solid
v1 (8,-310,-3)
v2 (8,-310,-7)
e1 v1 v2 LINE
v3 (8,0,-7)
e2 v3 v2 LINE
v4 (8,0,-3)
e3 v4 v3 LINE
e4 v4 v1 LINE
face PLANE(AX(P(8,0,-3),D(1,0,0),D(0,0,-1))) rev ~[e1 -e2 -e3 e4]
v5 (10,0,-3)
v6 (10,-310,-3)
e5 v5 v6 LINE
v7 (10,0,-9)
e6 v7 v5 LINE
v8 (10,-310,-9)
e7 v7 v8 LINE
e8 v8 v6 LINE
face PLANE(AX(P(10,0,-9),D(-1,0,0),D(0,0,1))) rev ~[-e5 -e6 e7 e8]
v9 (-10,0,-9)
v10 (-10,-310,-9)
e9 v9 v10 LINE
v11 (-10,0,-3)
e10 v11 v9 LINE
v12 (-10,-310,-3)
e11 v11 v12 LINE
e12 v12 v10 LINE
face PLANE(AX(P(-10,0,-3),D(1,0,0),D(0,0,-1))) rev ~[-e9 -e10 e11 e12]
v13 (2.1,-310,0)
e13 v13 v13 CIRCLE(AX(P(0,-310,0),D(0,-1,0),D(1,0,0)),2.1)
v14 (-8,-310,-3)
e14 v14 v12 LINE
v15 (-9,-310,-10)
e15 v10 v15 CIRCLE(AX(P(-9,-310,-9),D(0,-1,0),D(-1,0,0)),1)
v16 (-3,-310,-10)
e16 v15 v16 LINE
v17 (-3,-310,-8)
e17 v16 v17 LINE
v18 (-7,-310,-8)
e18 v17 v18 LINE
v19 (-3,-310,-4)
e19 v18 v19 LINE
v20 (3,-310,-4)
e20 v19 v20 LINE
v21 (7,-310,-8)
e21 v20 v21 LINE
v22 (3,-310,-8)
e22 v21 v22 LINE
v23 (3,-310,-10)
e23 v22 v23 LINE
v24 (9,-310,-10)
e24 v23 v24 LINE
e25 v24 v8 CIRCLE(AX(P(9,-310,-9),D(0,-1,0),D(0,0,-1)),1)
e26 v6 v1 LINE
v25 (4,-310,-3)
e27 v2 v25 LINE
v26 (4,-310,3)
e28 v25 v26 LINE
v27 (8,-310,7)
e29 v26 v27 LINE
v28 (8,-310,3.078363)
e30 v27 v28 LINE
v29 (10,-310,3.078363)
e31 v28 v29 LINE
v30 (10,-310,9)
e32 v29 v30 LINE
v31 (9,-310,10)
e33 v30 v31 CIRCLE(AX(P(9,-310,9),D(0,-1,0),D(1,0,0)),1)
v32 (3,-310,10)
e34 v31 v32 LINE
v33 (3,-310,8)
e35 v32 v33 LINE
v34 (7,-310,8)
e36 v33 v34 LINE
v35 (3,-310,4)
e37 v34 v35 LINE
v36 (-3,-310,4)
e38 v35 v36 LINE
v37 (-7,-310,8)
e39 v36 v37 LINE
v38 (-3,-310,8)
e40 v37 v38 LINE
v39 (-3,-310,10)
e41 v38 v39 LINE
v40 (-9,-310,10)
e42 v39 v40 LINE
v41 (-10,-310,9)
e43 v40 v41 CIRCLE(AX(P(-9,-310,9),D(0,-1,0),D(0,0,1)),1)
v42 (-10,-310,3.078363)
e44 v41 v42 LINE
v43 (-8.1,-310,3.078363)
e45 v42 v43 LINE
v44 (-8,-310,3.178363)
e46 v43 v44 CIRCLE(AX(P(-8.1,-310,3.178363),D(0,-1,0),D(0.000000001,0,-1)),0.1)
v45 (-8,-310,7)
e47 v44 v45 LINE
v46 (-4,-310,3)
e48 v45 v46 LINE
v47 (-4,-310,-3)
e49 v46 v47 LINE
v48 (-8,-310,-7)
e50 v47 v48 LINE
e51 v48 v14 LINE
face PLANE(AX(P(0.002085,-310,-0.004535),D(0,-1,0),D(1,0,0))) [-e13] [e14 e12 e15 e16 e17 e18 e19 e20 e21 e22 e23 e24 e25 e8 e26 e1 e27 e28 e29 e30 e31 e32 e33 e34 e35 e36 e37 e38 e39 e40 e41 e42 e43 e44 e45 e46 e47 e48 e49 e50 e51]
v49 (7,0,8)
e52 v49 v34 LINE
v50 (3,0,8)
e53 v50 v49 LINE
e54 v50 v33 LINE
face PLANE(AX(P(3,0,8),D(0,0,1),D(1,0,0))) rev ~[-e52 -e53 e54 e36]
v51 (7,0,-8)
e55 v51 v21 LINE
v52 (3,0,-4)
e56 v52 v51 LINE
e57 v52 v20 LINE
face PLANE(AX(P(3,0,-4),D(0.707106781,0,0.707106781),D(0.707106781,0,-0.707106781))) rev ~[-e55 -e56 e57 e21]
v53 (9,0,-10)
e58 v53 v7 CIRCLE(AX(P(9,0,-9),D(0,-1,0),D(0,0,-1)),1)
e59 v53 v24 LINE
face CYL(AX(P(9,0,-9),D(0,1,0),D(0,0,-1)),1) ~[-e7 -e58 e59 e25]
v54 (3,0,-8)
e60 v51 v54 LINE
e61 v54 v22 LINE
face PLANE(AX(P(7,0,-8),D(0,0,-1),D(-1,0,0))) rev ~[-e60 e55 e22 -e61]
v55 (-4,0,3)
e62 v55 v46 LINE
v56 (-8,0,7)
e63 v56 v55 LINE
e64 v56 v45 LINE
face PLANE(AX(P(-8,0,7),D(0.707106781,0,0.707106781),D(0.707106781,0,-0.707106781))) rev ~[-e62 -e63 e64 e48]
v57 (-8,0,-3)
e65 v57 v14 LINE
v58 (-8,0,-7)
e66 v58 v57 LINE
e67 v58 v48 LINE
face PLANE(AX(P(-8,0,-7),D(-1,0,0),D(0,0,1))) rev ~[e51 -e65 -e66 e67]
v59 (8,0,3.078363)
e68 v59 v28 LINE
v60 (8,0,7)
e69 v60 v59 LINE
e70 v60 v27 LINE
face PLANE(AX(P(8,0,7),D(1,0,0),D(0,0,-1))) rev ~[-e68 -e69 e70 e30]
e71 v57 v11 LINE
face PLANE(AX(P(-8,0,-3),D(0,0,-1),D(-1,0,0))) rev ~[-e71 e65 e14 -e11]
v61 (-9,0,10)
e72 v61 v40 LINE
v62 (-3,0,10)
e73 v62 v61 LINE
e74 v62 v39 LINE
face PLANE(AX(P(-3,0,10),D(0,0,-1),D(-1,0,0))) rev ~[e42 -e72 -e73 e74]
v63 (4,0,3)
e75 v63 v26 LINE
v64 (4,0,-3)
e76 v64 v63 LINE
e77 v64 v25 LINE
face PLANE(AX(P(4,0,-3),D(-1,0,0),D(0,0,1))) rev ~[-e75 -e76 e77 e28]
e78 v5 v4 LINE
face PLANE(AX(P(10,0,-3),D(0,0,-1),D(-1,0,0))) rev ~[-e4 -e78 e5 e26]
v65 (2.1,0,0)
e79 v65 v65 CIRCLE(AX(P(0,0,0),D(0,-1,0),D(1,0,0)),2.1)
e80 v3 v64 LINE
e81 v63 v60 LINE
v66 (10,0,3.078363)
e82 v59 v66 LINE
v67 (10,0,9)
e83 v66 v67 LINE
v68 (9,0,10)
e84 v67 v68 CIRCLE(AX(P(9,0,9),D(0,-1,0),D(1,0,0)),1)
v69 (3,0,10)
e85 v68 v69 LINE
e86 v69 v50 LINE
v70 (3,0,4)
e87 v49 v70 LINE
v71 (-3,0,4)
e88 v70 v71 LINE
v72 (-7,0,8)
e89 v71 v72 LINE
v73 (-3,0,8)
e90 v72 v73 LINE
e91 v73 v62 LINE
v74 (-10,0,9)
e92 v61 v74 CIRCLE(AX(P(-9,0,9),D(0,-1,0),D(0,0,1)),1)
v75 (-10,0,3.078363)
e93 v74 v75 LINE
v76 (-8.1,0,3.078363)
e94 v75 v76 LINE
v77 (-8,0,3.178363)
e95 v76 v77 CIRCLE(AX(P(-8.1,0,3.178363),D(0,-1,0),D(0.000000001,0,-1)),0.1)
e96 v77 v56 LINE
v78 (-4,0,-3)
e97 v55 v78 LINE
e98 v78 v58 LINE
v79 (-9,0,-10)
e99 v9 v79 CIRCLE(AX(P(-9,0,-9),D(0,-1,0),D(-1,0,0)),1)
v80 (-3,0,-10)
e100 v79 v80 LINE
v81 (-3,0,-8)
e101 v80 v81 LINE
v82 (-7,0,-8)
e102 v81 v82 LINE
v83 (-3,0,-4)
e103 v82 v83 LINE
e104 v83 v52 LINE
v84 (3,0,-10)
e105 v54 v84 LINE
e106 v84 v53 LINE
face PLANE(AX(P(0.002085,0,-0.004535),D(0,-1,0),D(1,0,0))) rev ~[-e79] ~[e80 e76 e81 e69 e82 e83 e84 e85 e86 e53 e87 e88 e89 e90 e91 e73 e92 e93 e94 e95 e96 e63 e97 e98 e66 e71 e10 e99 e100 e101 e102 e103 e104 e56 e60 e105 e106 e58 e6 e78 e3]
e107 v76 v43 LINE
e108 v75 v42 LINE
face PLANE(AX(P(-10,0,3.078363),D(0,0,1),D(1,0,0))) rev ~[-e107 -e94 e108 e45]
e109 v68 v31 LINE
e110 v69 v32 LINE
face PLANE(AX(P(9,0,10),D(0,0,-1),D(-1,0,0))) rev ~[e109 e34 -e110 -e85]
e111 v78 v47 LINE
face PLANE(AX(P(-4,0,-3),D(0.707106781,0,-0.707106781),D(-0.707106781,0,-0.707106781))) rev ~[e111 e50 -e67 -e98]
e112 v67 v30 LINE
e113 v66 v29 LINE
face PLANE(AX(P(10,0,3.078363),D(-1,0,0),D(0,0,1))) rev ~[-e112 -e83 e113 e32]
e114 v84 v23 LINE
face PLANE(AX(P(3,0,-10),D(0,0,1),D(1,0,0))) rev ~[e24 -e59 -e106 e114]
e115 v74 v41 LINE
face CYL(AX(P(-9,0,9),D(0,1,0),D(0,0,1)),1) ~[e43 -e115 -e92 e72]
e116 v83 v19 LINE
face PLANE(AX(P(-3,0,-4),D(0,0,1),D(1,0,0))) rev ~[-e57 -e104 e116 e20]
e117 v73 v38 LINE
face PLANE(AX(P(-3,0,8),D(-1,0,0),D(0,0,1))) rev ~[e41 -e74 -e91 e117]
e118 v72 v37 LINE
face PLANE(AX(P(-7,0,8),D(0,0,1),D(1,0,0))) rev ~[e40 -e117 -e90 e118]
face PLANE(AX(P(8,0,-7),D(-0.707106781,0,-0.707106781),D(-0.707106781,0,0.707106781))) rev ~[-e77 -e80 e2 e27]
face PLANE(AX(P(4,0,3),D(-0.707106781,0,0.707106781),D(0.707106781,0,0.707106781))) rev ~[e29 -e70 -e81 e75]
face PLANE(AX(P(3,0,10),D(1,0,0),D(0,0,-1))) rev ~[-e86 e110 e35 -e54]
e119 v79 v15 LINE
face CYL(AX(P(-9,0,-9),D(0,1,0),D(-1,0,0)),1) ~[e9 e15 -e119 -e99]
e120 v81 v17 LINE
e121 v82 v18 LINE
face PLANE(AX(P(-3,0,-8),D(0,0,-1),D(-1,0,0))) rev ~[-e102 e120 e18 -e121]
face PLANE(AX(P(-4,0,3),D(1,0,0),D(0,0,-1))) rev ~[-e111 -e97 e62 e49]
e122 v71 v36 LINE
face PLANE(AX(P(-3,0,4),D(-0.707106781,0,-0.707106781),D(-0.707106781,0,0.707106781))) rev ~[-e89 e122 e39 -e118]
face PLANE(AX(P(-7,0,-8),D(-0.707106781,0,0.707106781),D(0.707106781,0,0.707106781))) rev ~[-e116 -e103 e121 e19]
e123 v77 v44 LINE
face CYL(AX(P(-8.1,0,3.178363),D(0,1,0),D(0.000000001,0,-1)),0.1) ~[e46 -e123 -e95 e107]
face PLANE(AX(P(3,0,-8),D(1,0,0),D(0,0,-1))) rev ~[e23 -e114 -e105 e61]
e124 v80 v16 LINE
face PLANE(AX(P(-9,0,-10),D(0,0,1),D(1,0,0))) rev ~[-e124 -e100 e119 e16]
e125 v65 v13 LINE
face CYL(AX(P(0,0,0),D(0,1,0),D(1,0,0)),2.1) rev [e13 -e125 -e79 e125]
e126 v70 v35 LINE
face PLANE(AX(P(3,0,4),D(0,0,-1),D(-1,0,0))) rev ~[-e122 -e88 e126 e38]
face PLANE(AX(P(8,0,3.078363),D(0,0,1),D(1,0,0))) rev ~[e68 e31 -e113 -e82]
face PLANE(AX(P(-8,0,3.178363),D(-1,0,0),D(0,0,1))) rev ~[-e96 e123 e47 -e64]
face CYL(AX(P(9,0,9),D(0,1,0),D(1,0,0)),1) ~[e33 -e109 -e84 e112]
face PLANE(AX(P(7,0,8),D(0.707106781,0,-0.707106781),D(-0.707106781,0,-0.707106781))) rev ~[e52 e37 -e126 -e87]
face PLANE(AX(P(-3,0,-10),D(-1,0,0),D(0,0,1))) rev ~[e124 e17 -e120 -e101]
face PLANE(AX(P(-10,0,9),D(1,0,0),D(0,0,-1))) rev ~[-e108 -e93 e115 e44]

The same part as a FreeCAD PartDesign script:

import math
import FreeCAD as App
import Part
import Sketcher

V = App.Vector
Q = App.Units.Quantity

doc = App.newDocument("Part")
params = doc.addObject("Spreadsheet::Sheet", "Params")
for row, (alias, value) in enumerate([
    ("sketch1_radius", "1 mm"),
    ("sketch1_diameter", "4.2 mm"),
    ("sketch1_radius2", "0.1 mm"),
    ("sketch1_width", "6 mm"),
    ("sketch1_width2", "4 mm"),
    ("pad1_length", "310 mm"),
], start=1):
    params.set(f"A{row}", alias)
    params.set(f"B{row}", "=" + value)
    params.setAlias(f"B{row}", alias)

body = doc.addObject("PartDesign::Body", "Body")

# Sketch on XZ plane
sketch1 = body.newObject("Sketcher::SketchObject", "Sketch")
sketch1.AttachmentSupport = (doc.getObject("XZ_Plane"), [""])
sketch1.MapMode = "FlatFace"
sketch1.addGeometry([
    Part.ArcOfCircle(Part.Circle(V(-9, -9, 0), V(0, 0, 1), 1), math.radians(180), math.radians(270)),  # 0
    Part.LineSegment(V(-9, -10, 0), V(-3, -10, 0)),  # 1
    Part.LineSegment(V(-3, -10, 0), V(-3, -8, 0)),  # 2
    Part.LineSegment(V(-3, -8, 0), V(-7, -8, 0)),  # 3
    Part.LineSegment(V(-7, -8, 0), V(-3, -4, 0)),  # 4
    Part.LineSegment(V(-3, -4, 0), V(3, -4, 0)),  # 5
    Part.LineSegment(V(3, -4, 0), V(7, -8, 0)),  # 6
    Part.LineSegment(V(7, -8, 0), V(3, -8, 0)),  # 7
    Part.LineSegment(V(3, -8, 0), V(3, -10, 0)),  # 8
    Part.LineSegment(V(3, -10, 0), V(9, -10, 0)),  # 9
    Part.ArcOfCircle(Part.Circle(V(9, -9, 0), V(0, 0, 1), 1), math.radians(-90), math.radians(0)),  # 10
    Part.LineSegment(V(10, -9, 0), V(10, -3, 0)),  # 11
    Part.LineSegment(V(10, -3, 0), V(8, -3, 0)),  # 12
    Part.LineSegment(V(8, -3, 0), V(8, -7, 0)),  # 13
    Part.LineSegment(V(8, -7, 0), V(4, -3, 0)),  # 14
    Part.LineSegment(V(4, -3, 0), V(4, 3, 0)),  # 15
    Part.LineSegment(V(4, 3, 0), V(8, 7, 0)),  # 16
    Part.LineSegment(V(8, 7, 0), V(8, 3.078363, 0)),  # 17
    Part.LineSegment(V(8, 3.078363, 0), V(10, 3.078363, 0)),  # 18
    Part.LineSegment(V(10, 3.078363, 0), V(10, 9, 0)),  # 19
    Part.ArcOfCircle(Part.Circle(V(9, 9, 0), V(0, 0, 1), 1), math.radians(0), math.radians(90)),  # 20
    Part.LineSegment(V(9, 10, 0), V(3, 10, 0)),  # 21
    Part.LineSegment(V(3, 10, 0), V(3, 8, 0)),  # 22
    Part.LineSegment(V(3, 8, 0), V(7, 8, 0)),  # 23
    Part.LineSegment(V(7, 8, 0), V(3, 4, 0)),  # 24
    Part.LineSegment(V(3, 4, 0), V(-3, 4, 0)),  # 25
    Part.LineSegment(V(-3, 4, 0), V(-7, 8, 0)),  # 26
    Part.LineSegment(V(-7, 8, 0), V(-3, 8, 0)),  # 27
    Part.LineSegment(V(-3, 8, 0), V(-3, 10, 0)),  # 28
    Part.LineSegment(V(-3, 10, 0), V(-9, 10, 0)),  # 29
    Part.ArcOfCircle(Part.Circle(V(-9, 9, 0), V(0, 0, 1), 1), math.radians(90), math.radians(180)),  # 30
    Part.LineSegment(V(-10, 9, 0), V(-10, 3.078363, 0)),  # 31
    Part.LineSegment(V(-10, 3.078363, 0), V(-8.1, 3.078363, 0)),  # 32
    Part.ArcOfCircle(Part.Circle(V(-8.1, 3.178363, 0), V(0, 0, 1), 0.1), math.radians(-90), math.radians(0)),  # 33
    Part.LineSegment(V(-8, 3.178363, 0), V(-8, 7, 0)),  # 34
    Part.LineSegment(V(-8, 7, 0), V(-4, 3, 0)),  # 35
    Part.LineSegment(V(-4, 3, 0), V(-4, -3, 0)),  # 36
    Part.LineSegment(V(-4, -3, 0), V(-8, -7, 0)),  # 37
    Part.LineSegment(V(-8, -7, 0), V(-8, -3, 0)),  # 38
    Part.LineSegment(V(-8, -3, 0), V(-10, -3, 0)),  # 39
    Part.LineSegment(V(-10, -3, 0), V(-10, -9, 0)),  # 40
    Part.Circle(V(0, 0, 0), V(0, 0, 1), 2.1),  # 41
], False)
sketch1.addConstraint([
    Sketcher.Constraint("Tangent", 0, 2, 1, 1),
    Sketcher.Constraint("Coincident", 1, 2, 2, 1),
    Sketcher.Constraint("Coincident", 2, 2, 3, 1),
    Sketcher.Constraint("Coincident", 3, 2, 4, 1),
    Sketcher.Constraint("Coincident", 4, 2, 5, 1),
    Sketcher.Constraint("Coincident", 5, 2, 6, 1),
    Sketcher.Constraint("Coincident", 6, 2, 7, 1),
    Sketcher.Constraint("Coincident", 7, 2, 8, 1),
    Sketcher.Constraint("Coincident", 8, 2, 9, 1),
    Sketcher.Constraint("Tangent", 9, 2, 10, 1),
    Sketcher.Constraint("Tangent", 10, 2, 11, 1),
    Sketcher.Constraint("Coincident", 11, 2, 12, 1),
    Sketcher.Constraint("Coincident", 12, 2, 13, 1),
    Sketcher.Constraint("Coincident", 13, 2, 14, 1),
    Sketcher.Constraint("Coincident", 14, 2, 15, 1),
    Sketcher.Constraint("Coincident", 15, 2, 16, 1),
    Sketcher.Constraint("Coincident", 16, 2, 17, 1),
    Sketcher.Constraint("Coincident", 17, 2, 18, 1),
    Sketcher.Constraint("Coincident", 18, 2, 19, 1),
    Sketcher.Constraint("Tangent", 19, 2, 20, 1),
    Sketcher.Constraint("Tangent", 20, 2, 21, 1),
    Sketcher.Constraint("Coincident", 21, 2, 22, 1),
    Sketcher.Constraint("Coincident", 22, 2, 23, 1),
    Sketcher.Constraint("Coincident", 23, 2, 24, 1),
    Sketcher.Constraint("Coincident", 24, 2, 25, 1),
    Sketcher.Constraint("Coincident", 25, 2, 26, 1),
    Sketcher.Constraint("Coincident", 26, 2, 27, 1),
    Sketcher.Constraint("Coincident", 27, 2, 28, 1),
    Sketcher.Constraint("Coincident", 28, 2, 29, 1),
    Sketcher.Constraint("Tangent", 29, 2, 30, 1),
    Sketcher.Constraint("Tangent", 30, 2, 31, 1),
    Sketcher.Constraint("Coincident", 31, 2, 32, 1),
    Sketcher.Constraint("Tangent", 32, 2, 33, 1),
    Sketcher.Constraint("Tangent", 33, 2, 34, 1),
    Sketcher.Constraint("Coincident", 34, 2, 35, 1),
    Sketcher.Constraint("Coincident", 35, 2, 36, 1),
    Sketcher.Constraint("Coincident", 36, 2, 37, 1),
    Sketcher.Constraint("Coincident", 37, 2, 38, 1),
    Sketcher.Constraint("Coincident", 38, 2, 39, 1),
    Sketcher.Constraint("Coincident", 39, 2, 40, 1),
    Sketcher.Constraint("Tangent", 40, 2, 0, 1),
    Sketcher.Constraint("Horizontal", 1),
    Sketcher.Constraint("Vertical", 2),
    Sketcher.Constraint("Horizontal", 3),
    Sketcher.Constraint("Horizontal", 5),
    Sketcher.Constraint("Horizontal", 7),
    Sketcher.Constraint("Vertical", 8),
    Sketcher.Constraint("Horizontal", 9),
    Sketcher.Constraint("Vertical", 11),
    Sketcher.Constraint("Horizontal", 12),
    Sketcher.Constraint("Vertical", 13),
    Sketcher.Constraint("Vertical", 15),
    Sketcher.Constraint("Vertical", 17),
    Sketcher.Constraint("Horizontal", 18),
    Sketcher.Constraint("Vertical", 19),
    Sketcher.Constraint("Horizontal", 21),
    Sketcher.Constraint("Vertical", 22),
    Sketcher.Constraint("Horizontal", 23),
    Sketcher.Constraint("Horizontal", 25),
    Sketcher.Constraint("Horizontal", 27),
    Sketcher.Constraint("Vertical", 28),
    Sketcher.Constraint("Horizontal", 29),
    Sketcher.Constraint("Vertical", 31),
    Sketcher.Constraint("Horizontal", 32),
    Sketcher.Constraint("Vertical", 34),
    Sketcher.Constraint("Vertical", 36),
    Sketcher.Constraint("Vertical", 38),
    Sketcher.Constraint("Horizontal", 39),
    Sketcher.Constraint("Vertical", 40),
    Sketcher.Constraint("Coincident", 41, 3, -1, 1),
    Sketcher.Constraint("Equal", 0, 10),
    Sketcher.Constraint("Equal", 10, 20),
    Sketcher.Constraint("Equal", 20, 30),
    Sketcher.Constraint("Symmetric", 0, 3, 20, 3, -1, 1),
    Sketcher.Constraint("Symmetric", 10, 3, 30, 3, -1, 1),
    Sketcher.Constraint("Symmetric", 2, 2, 22, 2, -1, 1),
    Sketcher.Constraint("Symmetric", 4, 2, 24, 2, -1, 1),
    Sketcher.Constraint("Symmetric", 6, 2, 26, 2, -1, 1),
    Sketcher.Constraint("Symmetric", 13, 2, 34, 2, -1, 1),
    Sketcher.Constraint("Symmetric", 14, 2, 35, 2, -1, 1),
    Sketcher.Constraint("Symmetric", 16, 2, 37, 2, -1, 1),
    Sketcher.Constraint("Symmetric", 0, 3, 10, 3, -2),
    Sketcher.Constraint("Symmetric", 3, 2, 6, 2, -2),
    Sketcher.Constraint("Symmetric", 16, 2, 34, 2, -2),
    Sketcher.Constraint("Perpendicular", 4, 6),
    Sketcher.Constraint("Parallel", 6, 14),
    Sketcher.Constraint("Perpendicular", 14, 16),
    Sketcher.Constraint("Parallel", 16, 24),
    Sketcher.Constraint("Perpendicular", 24, 26),
    Sketcher.Constraint("Perpendicular", 35, 37),
    Sketcher.Constraint("Horizontal", 12, 2, 14, 2),
    Sketcher.Constraint("Horizontal", 18, 2, 31, 2),
    Sketcher.Constraint("Horizontal", 15, 2, 35, 2),
    Sketcher.Constraint("Horizontal", 36, 2, 38, 2),
    Sketcher.Constraint("Vertical", 2, 2, 4, 2),
    Sketcher.Constraint("Vertical", 5, 2, 7, 2),
    Sketcher.Constraint("Vertical", 25, 2, 27, 2),
    Sketcher.Constraint("Equal", 1, 5),
    Sketcher.Constraint("Equal", 39, 2),
    Sketcher.Constraint("Equal", 29, 11),
    Sketcher.Constraint("Equal", 27, 13),
    Sketcher.Constraint("Equal", 11, 15),
    Sketcher.Constraint("Radius", 0, Q("1 mm")),
    Sketcher.Constraint("Diameter", 41, Q("4.2 mm")),
    Sketcher.Constraint("Radius", 33, Q("0.1 mm")),
    Sketcher.Constraint("DistanceX", 1, 1, 1, 2, Q("6 mm")),
    Sketcher.Constraint("DistanceX", 3, 2, 3, 1, Q("4 mm")),
    Sketcher.Constraint("DistanceX", 12, 2, 12, 1, Q("2 mm")),
    Sketcher.Constraint("DistanceY", 17, 2, 17, 1, Q("3.921637 mm")),
])
sketch1.setExpression("Constraints[102]", "Params.sketch1_radius")
sketch1.setExpression("Constraints[103]", "Params.sketch1_diameter")
sketch1.setExpression("Constraints[104]", "Params.sketch1_radius2")
sketch1.setExpression("Constraints[105]", "Params.sketch1_width")
sketch1.setExpression("Constraints[106]", "Params.sketch1_width2")
pad1 = body.newObject("PartDesign::Pad", "Pad")
pad1.Profile = sketch1
pad1.setExpression("Length", "Params.pad1_length")

doc.recompute()
